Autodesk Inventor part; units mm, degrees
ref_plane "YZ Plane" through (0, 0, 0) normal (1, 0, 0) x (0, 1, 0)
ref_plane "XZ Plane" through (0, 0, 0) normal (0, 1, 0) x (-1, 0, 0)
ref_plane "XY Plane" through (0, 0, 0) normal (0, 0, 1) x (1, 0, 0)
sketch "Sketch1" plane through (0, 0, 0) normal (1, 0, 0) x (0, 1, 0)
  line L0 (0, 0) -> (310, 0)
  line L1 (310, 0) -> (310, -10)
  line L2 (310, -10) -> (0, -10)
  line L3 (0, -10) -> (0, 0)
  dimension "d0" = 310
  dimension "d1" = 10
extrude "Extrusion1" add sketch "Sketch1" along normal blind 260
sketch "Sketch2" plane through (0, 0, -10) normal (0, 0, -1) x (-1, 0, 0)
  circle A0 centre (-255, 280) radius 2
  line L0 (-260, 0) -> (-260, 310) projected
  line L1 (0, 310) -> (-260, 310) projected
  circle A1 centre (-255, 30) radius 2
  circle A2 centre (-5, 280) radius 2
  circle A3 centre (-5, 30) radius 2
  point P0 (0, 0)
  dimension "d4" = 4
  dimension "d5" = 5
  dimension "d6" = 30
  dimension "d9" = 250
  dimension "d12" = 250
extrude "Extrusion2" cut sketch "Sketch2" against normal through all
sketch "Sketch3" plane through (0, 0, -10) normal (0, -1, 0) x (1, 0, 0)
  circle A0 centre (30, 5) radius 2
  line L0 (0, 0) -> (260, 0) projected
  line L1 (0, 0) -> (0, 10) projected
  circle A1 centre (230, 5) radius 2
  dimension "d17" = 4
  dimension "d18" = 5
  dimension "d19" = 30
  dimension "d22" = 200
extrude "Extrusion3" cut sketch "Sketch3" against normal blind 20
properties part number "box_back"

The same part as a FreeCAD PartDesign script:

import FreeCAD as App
import Part
import Sketcher
from FreeCAD import Vector

doc = App.newDocument("Part")
params = doc.addObject("Spreadsheet::Sheet", "Params")
for row, (alias, value) in enumerate([
    ("sketch1_width", "310 mm"),
    ("sketch1_height", "10 mm"),
    ("pad1_length", "260 mm"),
    ("sketch2_diameter", "4 mm"),
    ("sketch3_diameter", "4 mm"),
    ("pocket2_length", "20 mm"),
], start=1):
    params.set(f"A{row}", alias)
    params.set(f"B{row}", "=" + value)
    params.setAlias(f"B{row}", alias)

body = doc.addObject("PartDesign::Body", "Body")

sketch1 = body.newObject("Sketcher::SketchObject", "Sketch")
sketch1.AttachmentSupport = (doc.getObject("YZ_Plane"), [""])
sketch1.MapMode = "FlatFace"
sketch1.addGeometry([
    Part.LineSegment(Vector(310, 0, 0), Vector(0, 0, 0)),
    Part.LineSegment(Vector(0, 0, 0), Vector(0, -10, 0)),
    Part.LineSegment(Vector(0, -10, 0), Vector(310, -10, 0)),
    Part.LineSegment(Vector(310, -10, 0), Vector(310, 0, 0)),
], False)
sketch1.addConstraint([
    Sketcher.Constraint("Coincident", 0, 2, 1, 1),
    Sketcher.Constraint("Coincident", 1, 2, 2, 1),
    Sketcher.Constraint("Coincident", 2, 2, 3, 1),
    Sketcher.Constraint("Coincident", 3, 2, 0, 1),
    Sketcher.Constraint("Horizontal", 0),
    Sketcher.Constraint("Vertical", 1),
    Sketcher.Constraint("Horizontal", 2),
    Sketcher.Constraint("Vertical", 3),
    Sketcher.Constraint("Coincident", 0, 2, -1, 1),
    Sketcher.Constraint("DistanceX", 0, 2, 0, 1, 310.0),
    Sketcher.Constraint("DistanceY", 1, 2, 1, 1, 10.0),
])
sketch1.setExpression("Constraints[9]", "Params.sketch1_width")
sketch1.setExpression("Constraints[10]", "Params.sketch1_height")
pad1 = body.newObject("PartDesign::Pad", "Pad")
pad1.Profile = sketch1
pad1.setExpression("Length", "Params.pad1_length")

sketch2 = body.newObject("Sketcher::SketchObject", "Sketch001")
sketch2.AttachmentSupport = (doc.getObject("XY_Plane"), [""])
sketch2.MapMode = "FlatFace"
sketch2.AttachmentOffset = App.Placement(Vector(0, 0, -10), App.Rotation())
sketch2.addGeometry([
    Part.Circle(Vector(255, 280, 0), Vector(0, 0, 1), 2),
    Part.Circle(Vector(255, 30, 0), Vector(0, 0, 1), 2),
    Part.Circle(Vector(5, 280, 0), Vector(0, 0, 1), 2),
    Part.Circle(Vector(5, 30, 0), Vector(0, 0, 1), 2),
], False)
sketch2.addConstraint([
    Sketcher.Constraint("Equal", 0, 1),
    Sketcher.Constraint("Equal", 1, 2),
    Sketcher.Constraint("Equal", 2, 3),
    Sketcher.Constraint("Horizontal", 0, 3, 2, 3),
    Sketcher.Constraint("Horizontal", 1, 3, 3, 3),
    Sketcher.Constraint("Vertical", 0, 3, 1, 3),
    Sketcher.Constraint("Vertical", 2, 3, 3, 3),
    Sketcher.Constraint("Diameter", 0, 4.0),
    Sketcher.Constraint("DistanceY", -1, 1, 1, 3, 30.0),
    Sketcher.Constraint("DistanceX", -1, 1, 2, 3, 5.0),
    Sketcher.Constraint("DistanceY", 1, 3, 0, 3, 250.0),
    Sketcher.Constraint("DistanceX", 2, 3, 0, 3, 250.0),
])
sketch2.setExpression("Constraints[7]", "Params.sketch2_diameter")
pocket1 = body.newObject("PartDesign::Pocket", "Pocket")
pocket1.Profile = sketch2
pocket1.Type = "ThroughAll"
pocket1.Reversed = True

sketch3 = body.newObject("Sketcher::SketchObject", "Sketch002")
sketch3.AttachmentSupport = (doc.getObject("XZ_Plane"), [""])
sketch3.MapMode = "FlatFace"
sketch3.addGeometry([
    Part.Circle(Vector(30, -5, 0), Vector(0, 0, 1), 2),
    Part.Circle(Vector(230, -5, 0), Vector(0, 0, 1), 2),
], False)
sketch3.addConstraint([
    Sketcher.Constraint("Equal", 0, 1),
    Sketcher.Constraint("Horizontal", 0, 3, 1, 3),
    Sketcher.Constraint("Diameter", 0, 4.0),
    Sketcher.Constraint("DistanceX", -1, 1, 0, 3, 30.0),
    Sketcher.Constraint("DistanceY", 0, 3, -1, 1, 5.0),
    Sketcher.Constraint("DistanceX", 0, 3, 1, 3, 200.0),
])
sketch3.setExpression("Constraints[2]", "Params.sketch3_diameter")
pocket2 = body.newObject("PartDesign::Pocket", "Pocket001")
pocket2.Profile = sketch3
pocket2.setExpression("Length", "Params.pocket2_length")

doc.recompute()
